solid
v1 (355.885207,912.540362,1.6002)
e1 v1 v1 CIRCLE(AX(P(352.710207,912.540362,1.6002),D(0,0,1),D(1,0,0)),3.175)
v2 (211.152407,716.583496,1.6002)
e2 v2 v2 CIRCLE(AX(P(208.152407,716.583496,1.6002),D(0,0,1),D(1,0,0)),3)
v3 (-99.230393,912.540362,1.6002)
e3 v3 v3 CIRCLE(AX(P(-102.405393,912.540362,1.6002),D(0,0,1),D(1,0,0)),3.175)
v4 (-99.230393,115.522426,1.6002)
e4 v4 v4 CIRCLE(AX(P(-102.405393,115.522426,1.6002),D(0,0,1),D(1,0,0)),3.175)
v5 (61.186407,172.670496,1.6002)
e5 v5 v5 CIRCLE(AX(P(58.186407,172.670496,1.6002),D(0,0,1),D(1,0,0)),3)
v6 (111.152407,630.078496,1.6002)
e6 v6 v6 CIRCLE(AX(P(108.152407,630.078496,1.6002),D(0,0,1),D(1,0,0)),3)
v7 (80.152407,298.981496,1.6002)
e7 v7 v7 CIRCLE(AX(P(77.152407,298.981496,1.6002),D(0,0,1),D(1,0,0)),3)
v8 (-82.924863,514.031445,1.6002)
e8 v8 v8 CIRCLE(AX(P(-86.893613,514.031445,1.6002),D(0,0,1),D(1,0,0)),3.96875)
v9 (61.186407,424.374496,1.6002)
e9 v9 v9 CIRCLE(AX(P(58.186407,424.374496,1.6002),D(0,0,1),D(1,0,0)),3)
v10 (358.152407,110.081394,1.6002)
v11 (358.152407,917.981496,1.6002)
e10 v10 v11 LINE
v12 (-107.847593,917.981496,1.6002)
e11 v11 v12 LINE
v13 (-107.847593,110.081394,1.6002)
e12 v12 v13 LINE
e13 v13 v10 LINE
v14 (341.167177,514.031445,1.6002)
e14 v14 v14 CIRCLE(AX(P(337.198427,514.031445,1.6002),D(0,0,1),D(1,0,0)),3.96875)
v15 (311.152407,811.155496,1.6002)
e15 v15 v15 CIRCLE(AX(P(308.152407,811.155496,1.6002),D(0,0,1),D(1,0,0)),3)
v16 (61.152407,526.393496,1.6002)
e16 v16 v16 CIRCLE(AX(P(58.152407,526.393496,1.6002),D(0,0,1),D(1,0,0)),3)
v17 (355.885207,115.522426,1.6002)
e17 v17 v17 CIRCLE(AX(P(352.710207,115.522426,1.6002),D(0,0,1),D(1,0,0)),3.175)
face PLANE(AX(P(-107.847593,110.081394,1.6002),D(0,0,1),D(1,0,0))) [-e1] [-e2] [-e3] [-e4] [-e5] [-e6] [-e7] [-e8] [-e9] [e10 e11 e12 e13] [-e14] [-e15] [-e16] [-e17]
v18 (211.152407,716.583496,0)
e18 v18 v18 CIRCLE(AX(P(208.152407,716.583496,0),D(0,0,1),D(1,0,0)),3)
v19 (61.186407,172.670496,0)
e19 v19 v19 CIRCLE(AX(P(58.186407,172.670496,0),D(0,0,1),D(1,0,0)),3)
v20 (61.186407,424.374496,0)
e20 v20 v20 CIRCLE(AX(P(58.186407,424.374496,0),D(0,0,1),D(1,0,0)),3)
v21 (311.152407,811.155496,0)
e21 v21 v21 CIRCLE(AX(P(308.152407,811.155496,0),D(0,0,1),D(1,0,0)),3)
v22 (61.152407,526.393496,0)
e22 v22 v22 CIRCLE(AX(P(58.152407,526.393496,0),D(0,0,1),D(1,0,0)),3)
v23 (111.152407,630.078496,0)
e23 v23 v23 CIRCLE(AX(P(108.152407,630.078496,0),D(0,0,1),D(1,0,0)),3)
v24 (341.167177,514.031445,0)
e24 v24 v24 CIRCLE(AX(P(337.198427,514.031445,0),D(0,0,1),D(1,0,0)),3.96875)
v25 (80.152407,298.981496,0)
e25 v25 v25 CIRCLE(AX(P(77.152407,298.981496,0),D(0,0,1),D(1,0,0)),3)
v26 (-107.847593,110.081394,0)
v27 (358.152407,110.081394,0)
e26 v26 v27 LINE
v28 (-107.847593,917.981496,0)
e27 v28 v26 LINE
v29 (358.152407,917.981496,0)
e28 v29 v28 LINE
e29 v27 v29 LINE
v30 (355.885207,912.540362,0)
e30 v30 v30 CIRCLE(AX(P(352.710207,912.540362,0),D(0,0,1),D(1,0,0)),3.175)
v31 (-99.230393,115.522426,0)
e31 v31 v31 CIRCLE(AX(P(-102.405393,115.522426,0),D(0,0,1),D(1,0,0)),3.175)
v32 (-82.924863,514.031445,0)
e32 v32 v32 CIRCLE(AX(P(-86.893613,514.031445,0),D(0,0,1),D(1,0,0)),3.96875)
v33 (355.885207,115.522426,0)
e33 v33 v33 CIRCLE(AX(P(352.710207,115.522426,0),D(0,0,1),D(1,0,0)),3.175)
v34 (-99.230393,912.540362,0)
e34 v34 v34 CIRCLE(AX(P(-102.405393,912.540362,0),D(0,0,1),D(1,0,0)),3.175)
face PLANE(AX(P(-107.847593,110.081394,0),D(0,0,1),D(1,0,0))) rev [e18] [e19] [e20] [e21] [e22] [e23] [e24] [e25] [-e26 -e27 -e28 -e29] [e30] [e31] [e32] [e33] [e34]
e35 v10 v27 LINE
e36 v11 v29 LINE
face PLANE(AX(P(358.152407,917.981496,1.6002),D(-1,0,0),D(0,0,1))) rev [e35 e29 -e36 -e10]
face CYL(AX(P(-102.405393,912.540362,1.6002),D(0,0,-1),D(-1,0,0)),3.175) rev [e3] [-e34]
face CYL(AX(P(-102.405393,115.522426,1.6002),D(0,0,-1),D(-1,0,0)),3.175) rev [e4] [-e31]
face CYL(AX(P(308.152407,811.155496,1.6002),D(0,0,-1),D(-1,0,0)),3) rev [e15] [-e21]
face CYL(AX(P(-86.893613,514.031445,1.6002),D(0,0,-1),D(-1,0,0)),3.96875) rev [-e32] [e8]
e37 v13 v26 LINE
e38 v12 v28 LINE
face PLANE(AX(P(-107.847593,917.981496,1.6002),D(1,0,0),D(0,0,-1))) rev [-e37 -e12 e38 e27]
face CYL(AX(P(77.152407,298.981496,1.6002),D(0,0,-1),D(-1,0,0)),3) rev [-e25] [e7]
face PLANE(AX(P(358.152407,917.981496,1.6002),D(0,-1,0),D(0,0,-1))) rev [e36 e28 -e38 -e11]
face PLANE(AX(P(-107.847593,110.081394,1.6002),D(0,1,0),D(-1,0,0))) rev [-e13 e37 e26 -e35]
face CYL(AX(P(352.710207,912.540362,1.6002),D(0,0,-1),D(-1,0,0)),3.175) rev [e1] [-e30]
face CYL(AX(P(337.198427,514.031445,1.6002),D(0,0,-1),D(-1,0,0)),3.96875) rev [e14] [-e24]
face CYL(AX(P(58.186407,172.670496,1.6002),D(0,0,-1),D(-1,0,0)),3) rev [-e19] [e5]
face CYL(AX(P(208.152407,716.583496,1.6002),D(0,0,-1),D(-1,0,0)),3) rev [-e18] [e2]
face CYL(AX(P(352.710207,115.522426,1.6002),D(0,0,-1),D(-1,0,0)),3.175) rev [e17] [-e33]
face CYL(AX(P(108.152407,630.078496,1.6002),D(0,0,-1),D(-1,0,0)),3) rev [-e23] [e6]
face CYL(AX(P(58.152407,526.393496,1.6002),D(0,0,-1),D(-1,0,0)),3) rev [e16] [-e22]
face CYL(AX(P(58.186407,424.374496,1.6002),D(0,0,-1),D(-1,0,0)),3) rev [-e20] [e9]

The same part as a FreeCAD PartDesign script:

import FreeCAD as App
import Part
import Sketcher
Q = App.Units.Quantity


def add_polygon(sketch, points):
    """Adds a closed chain of lines whose ends are joined by coincident constraints."""
    first, n = sketch.GeometryCount, len(points)
    for a, b in zip(points, points[1:] + points[:1]):
        sketch.addGeometry(Part.LineSegment(App.Vector(*a, 0), App.Vector(*b, 0)), False)
    for i in range(n):
        sketch.addConstraint(Sketcher.Constraint("Coincident", first + i, 2, first + (i + 1) % n, 1))

doc = App.newDocument("Part")
params = doc.addObject("Spreadsheet::Sheet", "Params")
for row, (alias, value) in enumerate([
    ("sketch1_diameter", "0.25 in"),
    ("sketch1_diameter2", "0.3125 in"),
    ("pad1_length", "0.063 in"),
], start=1):
    params.set(f"A{row}", alias)
    params.set(f"B{row}", "=" + value)
    params.setAlias(f"B{row}", alias)

body = doc.addObject("PartDesign::Body", "Body")

# Sketch on XY plane
sketch1 = body.newObject("Sketcher::SketchObject", "Sketch")
sketch1.AttachmentSupport = (doc.getObject("XY_Plane"), [""])
sketch1.MapMode = "FlatFace"
add_polygon(sketch1, [(-107.8, 918), (-107.8, 110.1), (358.2, 110.1), (358.2, 918)])  # lines 0-3
sketch1.addGeometry(Part.Circle(App.Vector(-102.4, 115.5, 0), App.Vector(0, 0, 1), 3.2), False)  # 4
sketch1.addGeometry(Part.Circle(App.Vector(58.2, 172.7, 0), App.Vector(0, 0, 1), 3), False)  # 5
sketch1.addGeometry(Part.Circle(App.Vector(77.2, 299, 0), App.Vector(0, 0, 1), 3), False)  # 6
sketch1.addGeometry(Part.Circle(App.Vector(58.2, 424.4, 0), App.Vector(0, 0, 1), 3), False)  # 7
sketch1.addGeometry(Part.Circle(App.Vector(352.7, 115.5, 0), App.Vector(0, 0, 1), 3.2), False)  # 8
sketch1.addGeometry(Part.Circle(App.Vector(-86.9, 514, 0), App.Vector(0, 0, 1), 4), False)  # 9
sketch1.addGeometry(Part.Circle(App.Vector(58.2, 526.4, 0), App.Vector(0, 0, 1), 3), False)  # 10
sketch1.addGeometry(Part.Circle(App.Vector(108.2, 630.1, 0), App.Vector(0, 0, 1), 3), False)  # 11
sketch1.addGeometry(Part.Circle(App.Vector(-102.4, 912.5, 0), App.Vector(0, 0, 1), 3.2), False)  # 12
sketch1.addGeometry(Part.Circle(App.Vector(337.2, 514, 0), App.Vector(0, 0, 1), 4), False)  # 13
sketch1.addGeometry(Part.Circle(App.Vector(208.2, 716.6, 0), App.Vector(0, 0, 1), 3), False)  # 14
sketch1.addGeometry(Part.Circle(App.Vector(308.2, 811.2, 0), App.Vector(0, 0, 1), 3), False)  # 15
sketch1.addGeometry(Part.Circle(App.Vector(352.7, 912.5, 0), App.Vector(0, 0, 1), 3.2), False)  # 16
sketch1.addConstraint([
    Sketcher.Constraint("Vertical", 0),
    Sketcher.Constraint("Horizontal", 1),
    Sketcher.Constraint("Vertical", 2),
    Sketcher.Constraint("Horizontal", 3),
    Sketcher.Constraint("Equal", 5, 6),
    Sketcher.Constraint("Equal", 6, 7),
    Sketcher.Constraint("Equal", 4, 8),
    Sketcher.Constraint("Equal", 7, 10),
    Sketcher.Constraint("Equal", 10, 11),
    Sketcher.Constraint("Equal", 8, 12),
    Sketcher.Constraint("Equal", 9, 13),
    Sketcher.Constraint("Equal", 11, 14),
    Sketcher.Constraint("Equal", 14, 15),
    Sketcher.Constraint("Equal", 12, 16),
    Sketcher.Constraint("Horizontal", 4, 3, 8, 3),
    Sketcher.Constraint("Horizontal", 9, 3, 13, 3),
    Sketcher.Constraint("Horizontal", 12, 3, 16, 3),
    Sketcher.Constraint("Vertical", 5, 3, 7, 3),
    Sketcher.Constraint("Vertical", 4, 3, 12, 3),
    Sketcher.Constraint("Vertical", 8, 3, 16, 3),
    Sketcher.Constraint("Diameter", 4, Q("0.25 in")),
    Sketcher.Constraint("Diameter", 9, Q("0.3125 in")),
    Sketcher.Constraint("Diameter", 5, Q("6 mm")),
    Sketcher.Constraint("DistanceX", 1, 1, 1, 2, Q("466 mm")),
    Sketcher.Constraint("DistanceY", 0, 2, 0, 1, Q("807.900102 mm")),
    Sketcher.Constraint("DistanceX", 4, 3, 9, 3, Q("0.6107 in")),
    Sketcher.Constraint("DistanceX", 13, 3, 8, 3, Q("0.6107 in")),
    Sketcher.Constraint("DistanceX", 4, 3, 5, 3, Q("160.5918 mm")),
    Sketcher.Constraint("DistanceX", 5, 3, 6, 3, Q("18.966 mm")),
    Sketcher.Constraint("DistanceY", 5, 3, 6, 3, Q("126.311 mm")),
    Sketcher.Constraint("DistanceY", 6, 3, 7, 3, Q("125.393 mm")),
    Sketcher.Constraint("DistanceX", 5, 3, 8, 3, Q("294.5238 mm")),
    Sketcher.Constraint("DistanceX", 10, 3, 7, 3, Q("0.034 mm")),
    Sketcher.Constraint("DistanceY", 7, 3, 10, 3, Q("102.019 mm")),
    Sketcher.Constraint("DistanceX", 10, 3, 11, 3, Q("50 mm")),
    Sketcher.Constraint("DistanceY", 10, 3, 11, 3, Q("103.685 mm")),
    Sketcher.Constraint("DistanceX", 11, 3, 14, 3, Q("100 mm")),
    Sketcher.Constraint("DistanceY", 11, 3, 14, 3, Q("86.505 mm")),
    Sketcher.Constraint("DistanceX", 14, 3, 15, 3, Q("100 mm")),
    Sketcher.Constraint("DistanceY", 14, 3, 15, 3, Q("94.572 mm")),
    Sketcher.Constraint("DistanceX", 0, 2, 4, 3, Q("5.4422 mm")),
    Sketcher.Constraint("DistanceY", 0, 2, 5, 3, Q("62.589102 mm")),
    Sketcher.Constraint("DistanceY", 4, 3, 5, 3, Q("57.14807 mm")),
    Sketcher.Constraint("DistanceY", 7, 3, 9, 3, Q("89.656949 mm")),
    Sketcher.Constraint("DistanceX", 4, 3, -1, 1, Q("102.405393 mm")),
    Sketcher.Constraint("DistanceY", -1, 1, 4, 3, Q("115.522426 mm")),
    Sketcher.Constraint("DistanceY", -1, 1, 12, 3, Q("912.540362 mm")),
])
sketch1.setExpression("Constraints[24]", "Params.sketch1_diameter")
sketch1.setExpression("Constraints[25]", "Params.sketch1_diameter2")
pad1 = body.newObject("PartDesign::Pad", "Pad")
pad1.Profile = sketch1
pad1.setExpression("Length", "Params.pad1_length")

doc.recompute()
